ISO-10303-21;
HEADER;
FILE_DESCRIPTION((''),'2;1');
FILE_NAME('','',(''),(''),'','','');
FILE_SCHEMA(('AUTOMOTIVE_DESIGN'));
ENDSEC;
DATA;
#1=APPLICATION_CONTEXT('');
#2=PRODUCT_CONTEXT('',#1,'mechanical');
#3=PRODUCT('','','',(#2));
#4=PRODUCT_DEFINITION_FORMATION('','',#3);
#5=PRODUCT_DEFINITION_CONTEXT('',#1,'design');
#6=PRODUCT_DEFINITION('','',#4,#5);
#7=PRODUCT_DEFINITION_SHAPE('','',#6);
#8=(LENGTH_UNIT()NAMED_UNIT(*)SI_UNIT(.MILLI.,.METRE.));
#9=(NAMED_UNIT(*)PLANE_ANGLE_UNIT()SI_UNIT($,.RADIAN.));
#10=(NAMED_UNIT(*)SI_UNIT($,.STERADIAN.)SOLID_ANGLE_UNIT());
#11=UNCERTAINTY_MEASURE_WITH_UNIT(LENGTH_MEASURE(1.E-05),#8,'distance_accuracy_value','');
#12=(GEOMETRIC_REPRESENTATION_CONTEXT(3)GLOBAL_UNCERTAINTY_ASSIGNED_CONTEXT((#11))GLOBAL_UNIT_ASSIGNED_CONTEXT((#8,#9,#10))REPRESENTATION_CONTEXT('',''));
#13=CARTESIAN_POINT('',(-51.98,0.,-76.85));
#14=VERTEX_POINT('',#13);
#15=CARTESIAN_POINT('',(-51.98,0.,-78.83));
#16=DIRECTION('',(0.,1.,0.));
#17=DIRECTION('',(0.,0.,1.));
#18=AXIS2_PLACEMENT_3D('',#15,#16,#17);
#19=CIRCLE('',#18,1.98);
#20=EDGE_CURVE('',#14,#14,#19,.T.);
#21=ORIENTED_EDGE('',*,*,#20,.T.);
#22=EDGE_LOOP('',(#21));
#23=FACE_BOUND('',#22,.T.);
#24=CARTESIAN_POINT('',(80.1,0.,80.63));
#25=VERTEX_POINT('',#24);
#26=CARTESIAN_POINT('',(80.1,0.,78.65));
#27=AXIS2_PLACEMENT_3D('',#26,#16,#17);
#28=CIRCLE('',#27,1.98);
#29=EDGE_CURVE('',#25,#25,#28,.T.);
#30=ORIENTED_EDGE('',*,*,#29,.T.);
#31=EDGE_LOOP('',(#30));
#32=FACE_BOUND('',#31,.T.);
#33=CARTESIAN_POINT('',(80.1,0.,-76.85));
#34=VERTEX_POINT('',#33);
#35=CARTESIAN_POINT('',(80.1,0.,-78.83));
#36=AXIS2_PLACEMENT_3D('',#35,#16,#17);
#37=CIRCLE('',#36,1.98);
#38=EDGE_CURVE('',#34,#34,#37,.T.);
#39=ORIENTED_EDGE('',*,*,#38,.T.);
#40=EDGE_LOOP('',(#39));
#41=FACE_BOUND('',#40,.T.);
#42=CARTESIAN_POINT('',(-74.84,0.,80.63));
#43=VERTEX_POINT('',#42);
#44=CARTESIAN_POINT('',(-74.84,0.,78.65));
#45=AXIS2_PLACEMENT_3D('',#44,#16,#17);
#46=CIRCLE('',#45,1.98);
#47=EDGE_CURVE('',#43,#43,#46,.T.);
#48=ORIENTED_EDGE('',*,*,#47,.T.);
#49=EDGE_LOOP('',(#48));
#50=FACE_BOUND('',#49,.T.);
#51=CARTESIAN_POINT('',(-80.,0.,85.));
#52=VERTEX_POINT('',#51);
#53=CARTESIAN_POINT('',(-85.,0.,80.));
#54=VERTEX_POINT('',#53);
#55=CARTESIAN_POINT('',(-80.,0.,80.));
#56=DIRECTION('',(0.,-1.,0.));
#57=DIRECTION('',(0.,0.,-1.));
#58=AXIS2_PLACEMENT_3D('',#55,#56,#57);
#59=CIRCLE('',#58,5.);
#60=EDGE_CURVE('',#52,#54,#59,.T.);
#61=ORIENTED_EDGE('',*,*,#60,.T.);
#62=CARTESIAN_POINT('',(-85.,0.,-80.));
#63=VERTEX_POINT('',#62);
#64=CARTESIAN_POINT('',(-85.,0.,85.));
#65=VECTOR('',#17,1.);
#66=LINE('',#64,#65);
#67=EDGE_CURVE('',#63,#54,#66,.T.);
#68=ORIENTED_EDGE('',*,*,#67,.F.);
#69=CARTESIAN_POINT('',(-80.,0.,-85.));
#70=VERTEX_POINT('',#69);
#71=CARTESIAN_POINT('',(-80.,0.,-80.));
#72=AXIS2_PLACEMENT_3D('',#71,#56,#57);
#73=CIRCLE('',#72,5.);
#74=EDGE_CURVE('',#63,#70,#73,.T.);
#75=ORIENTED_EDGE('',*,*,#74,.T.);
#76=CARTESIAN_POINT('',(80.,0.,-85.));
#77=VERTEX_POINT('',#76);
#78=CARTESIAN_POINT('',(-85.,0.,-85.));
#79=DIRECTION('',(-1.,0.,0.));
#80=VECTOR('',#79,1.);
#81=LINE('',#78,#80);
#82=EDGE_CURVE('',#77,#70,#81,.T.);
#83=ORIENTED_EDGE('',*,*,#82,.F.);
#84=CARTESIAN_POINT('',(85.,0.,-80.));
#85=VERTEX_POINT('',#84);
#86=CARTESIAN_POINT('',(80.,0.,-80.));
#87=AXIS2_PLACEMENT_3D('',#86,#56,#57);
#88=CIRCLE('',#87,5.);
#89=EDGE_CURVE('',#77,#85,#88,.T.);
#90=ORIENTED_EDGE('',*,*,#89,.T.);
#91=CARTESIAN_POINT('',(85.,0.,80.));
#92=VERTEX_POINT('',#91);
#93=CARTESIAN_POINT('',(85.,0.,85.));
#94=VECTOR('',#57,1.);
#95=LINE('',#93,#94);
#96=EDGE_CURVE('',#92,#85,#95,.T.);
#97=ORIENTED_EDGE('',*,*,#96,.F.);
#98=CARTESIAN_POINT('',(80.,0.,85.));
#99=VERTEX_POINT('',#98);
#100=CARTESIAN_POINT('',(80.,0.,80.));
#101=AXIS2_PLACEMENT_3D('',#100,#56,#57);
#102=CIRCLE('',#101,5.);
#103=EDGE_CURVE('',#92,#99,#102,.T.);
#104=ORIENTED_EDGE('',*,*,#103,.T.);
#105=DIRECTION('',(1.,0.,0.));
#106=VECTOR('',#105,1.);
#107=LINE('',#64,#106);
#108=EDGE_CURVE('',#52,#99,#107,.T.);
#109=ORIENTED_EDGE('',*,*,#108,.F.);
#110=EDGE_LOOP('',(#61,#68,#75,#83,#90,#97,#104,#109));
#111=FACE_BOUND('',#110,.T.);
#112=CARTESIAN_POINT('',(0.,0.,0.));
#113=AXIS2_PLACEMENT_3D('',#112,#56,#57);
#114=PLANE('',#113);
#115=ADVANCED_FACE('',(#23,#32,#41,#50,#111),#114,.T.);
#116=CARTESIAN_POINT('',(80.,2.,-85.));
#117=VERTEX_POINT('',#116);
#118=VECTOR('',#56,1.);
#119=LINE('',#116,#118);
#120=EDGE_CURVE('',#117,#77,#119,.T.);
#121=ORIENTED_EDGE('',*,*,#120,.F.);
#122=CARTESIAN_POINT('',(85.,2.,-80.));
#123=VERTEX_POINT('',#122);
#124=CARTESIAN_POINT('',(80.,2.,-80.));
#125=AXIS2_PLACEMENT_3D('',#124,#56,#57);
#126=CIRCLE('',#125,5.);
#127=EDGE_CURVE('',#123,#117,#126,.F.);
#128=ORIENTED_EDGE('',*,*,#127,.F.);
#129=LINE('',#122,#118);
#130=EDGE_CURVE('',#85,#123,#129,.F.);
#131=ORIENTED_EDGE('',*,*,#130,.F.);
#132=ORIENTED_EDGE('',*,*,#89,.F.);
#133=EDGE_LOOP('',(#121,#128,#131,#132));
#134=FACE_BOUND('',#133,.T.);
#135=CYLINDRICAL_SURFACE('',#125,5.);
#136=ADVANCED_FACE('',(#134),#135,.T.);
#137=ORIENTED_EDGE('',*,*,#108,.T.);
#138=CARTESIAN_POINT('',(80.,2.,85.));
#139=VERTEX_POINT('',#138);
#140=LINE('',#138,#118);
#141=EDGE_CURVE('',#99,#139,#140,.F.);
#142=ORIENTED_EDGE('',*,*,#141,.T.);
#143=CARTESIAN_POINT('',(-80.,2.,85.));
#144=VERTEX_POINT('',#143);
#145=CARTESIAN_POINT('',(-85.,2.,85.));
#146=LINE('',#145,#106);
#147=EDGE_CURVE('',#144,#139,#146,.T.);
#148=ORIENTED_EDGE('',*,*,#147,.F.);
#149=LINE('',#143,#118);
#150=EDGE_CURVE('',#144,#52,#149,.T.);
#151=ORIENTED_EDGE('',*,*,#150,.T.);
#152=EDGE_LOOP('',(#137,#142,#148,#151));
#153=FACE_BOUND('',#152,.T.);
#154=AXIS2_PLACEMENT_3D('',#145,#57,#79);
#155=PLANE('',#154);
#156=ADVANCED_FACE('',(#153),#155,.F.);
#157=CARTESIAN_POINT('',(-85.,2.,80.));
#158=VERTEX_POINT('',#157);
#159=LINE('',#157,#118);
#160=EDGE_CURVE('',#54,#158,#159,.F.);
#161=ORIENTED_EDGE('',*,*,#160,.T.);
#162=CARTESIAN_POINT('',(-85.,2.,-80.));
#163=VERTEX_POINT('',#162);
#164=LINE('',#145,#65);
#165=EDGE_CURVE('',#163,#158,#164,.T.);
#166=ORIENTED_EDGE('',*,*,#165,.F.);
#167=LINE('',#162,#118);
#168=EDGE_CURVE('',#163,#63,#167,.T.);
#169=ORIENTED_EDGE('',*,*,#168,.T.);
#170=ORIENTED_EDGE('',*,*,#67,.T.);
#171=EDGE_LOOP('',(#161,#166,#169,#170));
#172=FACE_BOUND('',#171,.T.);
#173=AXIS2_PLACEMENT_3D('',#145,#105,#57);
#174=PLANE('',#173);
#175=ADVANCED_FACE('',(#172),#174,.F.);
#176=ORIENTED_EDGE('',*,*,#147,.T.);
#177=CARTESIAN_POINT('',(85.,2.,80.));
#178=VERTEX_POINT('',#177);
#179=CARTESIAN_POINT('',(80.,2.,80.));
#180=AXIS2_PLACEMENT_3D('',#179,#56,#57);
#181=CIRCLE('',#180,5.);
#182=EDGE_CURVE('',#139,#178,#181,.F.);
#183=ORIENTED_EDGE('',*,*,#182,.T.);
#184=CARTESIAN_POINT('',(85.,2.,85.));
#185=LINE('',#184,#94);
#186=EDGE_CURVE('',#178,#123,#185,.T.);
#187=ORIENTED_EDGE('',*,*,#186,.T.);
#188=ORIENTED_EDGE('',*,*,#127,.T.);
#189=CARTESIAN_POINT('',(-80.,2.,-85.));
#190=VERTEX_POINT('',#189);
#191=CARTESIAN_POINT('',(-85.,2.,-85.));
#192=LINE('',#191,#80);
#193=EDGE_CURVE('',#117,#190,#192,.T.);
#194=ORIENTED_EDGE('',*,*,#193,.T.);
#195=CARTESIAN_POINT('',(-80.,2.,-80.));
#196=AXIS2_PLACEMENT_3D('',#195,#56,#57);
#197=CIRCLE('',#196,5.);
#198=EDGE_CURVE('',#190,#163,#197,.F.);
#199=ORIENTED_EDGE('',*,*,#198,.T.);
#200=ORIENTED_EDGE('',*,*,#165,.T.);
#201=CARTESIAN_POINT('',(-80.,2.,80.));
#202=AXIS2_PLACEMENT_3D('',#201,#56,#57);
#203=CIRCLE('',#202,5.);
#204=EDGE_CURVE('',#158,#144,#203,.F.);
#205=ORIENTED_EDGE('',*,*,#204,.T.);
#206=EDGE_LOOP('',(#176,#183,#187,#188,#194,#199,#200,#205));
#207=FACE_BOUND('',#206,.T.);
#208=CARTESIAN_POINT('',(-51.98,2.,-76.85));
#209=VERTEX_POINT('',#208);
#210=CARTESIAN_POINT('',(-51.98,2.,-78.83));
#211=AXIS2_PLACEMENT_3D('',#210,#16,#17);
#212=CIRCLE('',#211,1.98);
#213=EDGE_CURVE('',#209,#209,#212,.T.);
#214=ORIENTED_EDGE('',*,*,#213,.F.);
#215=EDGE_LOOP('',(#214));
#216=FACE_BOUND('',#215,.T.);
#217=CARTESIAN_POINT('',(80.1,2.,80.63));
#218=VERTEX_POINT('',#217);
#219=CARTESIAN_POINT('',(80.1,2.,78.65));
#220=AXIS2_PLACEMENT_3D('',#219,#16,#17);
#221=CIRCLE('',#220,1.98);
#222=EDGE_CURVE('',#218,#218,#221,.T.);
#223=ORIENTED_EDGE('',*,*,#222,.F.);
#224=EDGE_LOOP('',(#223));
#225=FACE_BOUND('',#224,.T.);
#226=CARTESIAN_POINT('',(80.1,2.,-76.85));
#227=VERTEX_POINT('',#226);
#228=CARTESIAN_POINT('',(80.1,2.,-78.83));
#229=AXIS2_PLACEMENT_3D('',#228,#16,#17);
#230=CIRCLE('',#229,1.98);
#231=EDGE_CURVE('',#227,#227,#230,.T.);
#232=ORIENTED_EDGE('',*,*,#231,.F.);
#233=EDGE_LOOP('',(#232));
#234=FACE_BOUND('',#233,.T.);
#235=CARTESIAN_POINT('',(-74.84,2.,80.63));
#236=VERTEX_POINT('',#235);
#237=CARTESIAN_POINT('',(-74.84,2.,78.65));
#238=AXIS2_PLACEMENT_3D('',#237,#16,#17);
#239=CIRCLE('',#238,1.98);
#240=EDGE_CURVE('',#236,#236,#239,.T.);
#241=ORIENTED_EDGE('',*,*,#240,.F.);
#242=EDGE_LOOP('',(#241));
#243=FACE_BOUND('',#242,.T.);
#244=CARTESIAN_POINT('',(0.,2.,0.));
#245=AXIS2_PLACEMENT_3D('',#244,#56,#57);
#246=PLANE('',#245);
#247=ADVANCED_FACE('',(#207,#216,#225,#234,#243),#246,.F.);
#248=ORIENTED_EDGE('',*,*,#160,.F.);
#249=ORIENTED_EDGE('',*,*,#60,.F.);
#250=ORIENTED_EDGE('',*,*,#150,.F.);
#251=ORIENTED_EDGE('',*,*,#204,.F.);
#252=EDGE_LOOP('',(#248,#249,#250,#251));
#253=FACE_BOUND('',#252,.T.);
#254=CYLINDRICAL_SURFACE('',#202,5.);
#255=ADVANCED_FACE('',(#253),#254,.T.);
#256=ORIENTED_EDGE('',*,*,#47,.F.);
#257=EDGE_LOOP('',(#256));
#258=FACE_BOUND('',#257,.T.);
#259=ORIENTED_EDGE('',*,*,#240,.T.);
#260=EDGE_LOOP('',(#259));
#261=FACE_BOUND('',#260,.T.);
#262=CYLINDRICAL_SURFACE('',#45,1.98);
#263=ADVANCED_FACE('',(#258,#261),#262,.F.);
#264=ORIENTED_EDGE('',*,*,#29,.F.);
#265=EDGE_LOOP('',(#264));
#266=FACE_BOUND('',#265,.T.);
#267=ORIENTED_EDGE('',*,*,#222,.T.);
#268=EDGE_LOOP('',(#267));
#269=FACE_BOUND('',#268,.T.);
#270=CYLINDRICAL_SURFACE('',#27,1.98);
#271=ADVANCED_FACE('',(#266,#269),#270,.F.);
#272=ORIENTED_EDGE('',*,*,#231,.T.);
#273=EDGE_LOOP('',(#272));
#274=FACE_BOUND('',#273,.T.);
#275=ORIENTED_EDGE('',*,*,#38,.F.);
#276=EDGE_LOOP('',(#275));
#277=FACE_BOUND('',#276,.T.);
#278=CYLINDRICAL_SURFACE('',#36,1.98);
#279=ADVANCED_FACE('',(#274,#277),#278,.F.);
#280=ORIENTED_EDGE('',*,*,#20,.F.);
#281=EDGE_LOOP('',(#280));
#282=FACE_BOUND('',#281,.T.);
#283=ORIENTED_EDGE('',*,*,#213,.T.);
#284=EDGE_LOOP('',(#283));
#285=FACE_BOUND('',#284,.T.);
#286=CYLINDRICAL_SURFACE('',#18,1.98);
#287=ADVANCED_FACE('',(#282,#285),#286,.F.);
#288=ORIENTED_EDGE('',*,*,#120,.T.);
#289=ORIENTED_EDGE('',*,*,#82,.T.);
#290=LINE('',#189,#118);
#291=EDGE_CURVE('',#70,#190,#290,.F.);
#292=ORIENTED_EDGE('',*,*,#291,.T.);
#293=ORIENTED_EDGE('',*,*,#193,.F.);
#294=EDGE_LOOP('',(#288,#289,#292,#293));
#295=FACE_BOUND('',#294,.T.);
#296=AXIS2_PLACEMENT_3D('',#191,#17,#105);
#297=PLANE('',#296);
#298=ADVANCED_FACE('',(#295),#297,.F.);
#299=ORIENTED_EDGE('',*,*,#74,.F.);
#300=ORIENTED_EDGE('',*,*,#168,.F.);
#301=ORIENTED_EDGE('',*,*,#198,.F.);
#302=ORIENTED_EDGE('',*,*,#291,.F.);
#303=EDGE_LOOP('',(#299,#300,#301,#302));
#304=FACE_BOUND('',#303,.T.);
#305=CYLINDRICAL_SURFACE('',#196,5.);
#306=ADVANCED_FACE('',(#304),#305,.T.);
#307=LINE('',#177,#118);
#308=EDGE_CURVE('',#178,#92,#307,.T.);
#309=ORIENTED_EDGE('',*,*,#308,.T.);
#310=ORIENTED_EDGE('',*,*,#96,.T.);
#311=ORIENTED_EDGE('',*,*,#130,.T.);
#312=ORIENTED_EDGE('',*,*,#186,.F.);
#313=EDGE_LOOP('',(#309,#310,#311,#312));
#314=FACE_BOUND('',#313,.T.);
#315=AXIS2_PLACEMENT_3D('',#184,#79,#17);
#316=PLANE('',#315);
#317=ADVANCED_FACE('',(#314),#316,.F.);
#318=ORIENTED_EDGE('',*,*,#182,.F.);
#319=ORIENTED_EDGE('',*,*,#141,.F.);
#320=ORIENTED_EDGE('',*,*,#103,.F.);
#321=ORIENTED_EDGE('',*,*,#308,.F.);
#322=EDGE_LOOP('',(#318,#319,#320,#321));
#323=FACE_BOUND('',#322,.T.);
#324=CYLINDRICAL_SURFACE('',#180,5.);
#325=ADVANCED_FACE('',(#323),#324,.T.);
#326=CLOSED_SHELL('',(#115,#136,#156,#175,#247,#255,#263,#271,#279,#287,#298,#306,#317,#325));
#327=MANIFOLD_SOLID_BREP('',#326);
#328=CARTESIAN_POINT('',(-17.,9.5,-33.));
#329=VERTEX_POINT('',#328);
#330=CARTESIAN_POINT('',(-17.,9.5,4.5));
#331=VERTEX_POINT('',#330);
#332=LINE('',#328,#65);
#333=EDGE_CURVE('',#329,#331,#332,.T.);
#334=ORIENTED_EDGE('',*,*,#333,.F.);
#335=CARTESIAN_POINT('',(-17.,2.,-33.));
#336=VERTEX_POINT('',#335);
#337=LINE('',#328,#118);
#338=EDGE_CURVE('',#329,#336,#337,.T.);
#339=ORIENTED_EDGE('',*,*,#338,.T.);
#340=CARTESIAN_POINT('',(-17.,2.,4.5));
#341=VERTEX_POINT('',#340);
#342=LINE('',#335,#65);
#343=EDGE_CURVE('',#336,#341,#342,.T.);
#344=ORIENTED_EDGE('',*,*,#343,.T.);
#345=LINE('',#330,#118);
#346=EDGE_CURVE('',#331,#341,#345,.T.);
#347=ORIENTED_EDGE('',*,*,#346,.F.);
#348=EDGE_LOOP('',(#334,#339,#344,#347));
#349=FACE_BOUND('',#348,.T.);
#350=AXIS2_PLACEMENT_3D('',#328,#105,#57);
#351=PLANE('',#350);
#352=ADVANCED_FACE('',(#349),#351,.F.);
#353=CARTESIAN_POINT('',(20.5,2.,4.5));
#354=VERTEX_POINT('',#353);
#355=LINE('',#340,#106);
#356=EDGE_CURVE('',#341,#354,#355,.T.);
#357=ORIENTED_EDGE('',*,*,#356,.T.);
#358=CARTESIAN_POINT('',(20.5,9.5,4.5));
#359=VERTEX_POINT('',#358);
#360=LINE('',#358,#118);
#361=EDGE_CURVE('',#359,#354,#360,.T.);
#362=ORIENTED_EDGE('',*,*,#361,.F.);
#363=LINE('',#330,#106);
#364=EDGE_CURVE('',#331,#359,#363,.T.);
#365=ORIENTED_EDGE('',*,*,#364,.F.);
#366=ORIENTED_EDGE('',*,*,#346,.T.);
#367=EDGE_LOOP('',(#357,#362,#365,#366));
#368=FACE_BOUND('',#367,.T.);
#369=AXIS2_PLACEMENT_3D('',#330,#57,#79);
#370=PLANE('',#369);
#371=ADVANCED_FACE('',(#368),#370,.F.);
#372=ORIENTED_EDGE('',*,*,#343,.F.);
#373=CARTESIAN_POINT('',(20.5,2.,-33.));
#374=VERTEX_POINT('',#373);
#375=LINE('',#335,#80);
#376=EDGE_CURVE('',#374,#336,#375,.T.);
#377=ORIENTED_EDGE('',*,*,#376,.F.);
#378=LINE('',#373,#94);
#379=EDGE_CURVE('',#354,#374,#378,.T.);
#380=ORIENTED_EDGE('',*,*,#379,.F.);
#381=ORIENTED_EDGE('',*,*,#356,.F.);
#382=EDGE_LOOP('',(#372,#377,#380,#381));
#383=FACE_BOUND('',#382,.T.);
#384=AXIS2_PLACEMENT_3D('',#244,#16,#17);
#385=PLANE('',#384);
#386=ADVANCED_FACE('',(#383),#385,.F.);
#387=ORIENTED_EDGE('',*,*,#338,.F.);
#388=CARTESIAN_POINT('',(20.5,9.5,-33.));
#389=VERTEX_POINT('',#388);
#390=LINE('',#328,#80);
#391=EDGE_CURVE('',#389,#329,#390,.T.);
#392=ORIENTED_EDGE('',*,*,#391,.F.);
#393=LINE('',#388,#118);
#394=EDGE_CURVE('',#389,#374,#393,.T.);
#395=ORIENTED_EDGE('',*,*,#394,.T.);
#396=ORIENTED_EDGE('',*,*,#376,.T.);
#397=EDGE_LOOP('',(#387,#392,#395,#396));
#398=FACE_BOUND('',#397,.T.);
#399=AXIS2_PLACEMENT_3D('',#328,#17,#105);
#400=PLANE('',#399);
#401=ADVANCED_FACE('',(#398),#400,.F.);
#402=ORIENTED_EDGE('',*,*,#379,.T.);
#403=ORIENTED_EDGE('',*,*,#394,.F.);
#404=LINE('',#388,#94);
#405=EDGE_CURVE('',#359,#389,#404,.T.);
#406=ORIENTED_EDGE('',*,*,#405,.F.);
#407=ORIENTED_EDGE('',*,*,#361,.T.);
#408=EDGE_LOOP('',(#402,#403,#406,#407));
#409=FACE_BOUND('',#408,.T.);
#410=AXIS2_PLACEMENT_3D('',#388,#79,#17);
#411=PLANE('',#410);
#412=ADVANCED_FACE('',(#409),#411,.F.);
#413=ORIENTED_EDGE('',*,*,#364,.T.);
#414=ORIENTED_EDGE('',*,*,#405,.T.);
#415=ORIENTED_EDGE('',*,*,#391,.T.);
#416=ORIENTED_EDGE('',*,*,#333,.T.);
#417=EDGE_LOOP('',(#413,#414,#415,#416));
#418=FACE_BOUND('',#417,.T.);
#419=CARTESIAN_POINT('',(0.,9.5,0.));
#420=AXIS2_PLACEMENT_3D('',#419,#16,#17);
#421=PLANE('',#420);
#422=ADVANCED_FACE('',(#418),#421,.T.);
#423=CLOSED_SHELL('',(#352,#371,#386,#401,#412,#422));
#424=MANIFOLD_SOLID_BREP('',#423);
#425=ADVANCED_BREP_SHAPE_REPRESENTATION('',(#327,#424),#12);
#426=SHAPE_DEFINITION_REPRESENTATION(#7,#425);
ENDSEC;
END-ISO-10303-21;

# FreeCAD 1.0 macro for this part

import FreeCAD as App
import Part
import Sketcher
Q = App.Units.Quantity


def edges_at(feature, points):
    """Names of the edges that pass closest to the given points."""
    edges = feature.Shape.Edges
    near = lambda p: min(range(len(edges)), key=lambda i: edges[i].distToShape(Part.Vertex(*p))[0])
    return sorted({f"Edge{near(p) + 1}" for p in points})

doc = App.newDocument("Part")
body = doc.addObject("PartDesign::Body", "Body")

# Sketch on XZ plane
sketch1 = body.newObject("Sketcher::SketchObject", "Sketch")
sketch1.AttachmentSupport = (doc.getObject("XZ_Plane"), [""])
sketch1.MapMode = "FlatFace"
sketch1.addGeometry([
    Part.LineSegment(App.Vector(-85, -85, 0), App.Vector(-85, 85, 0)),
    Part.LineSegment(App.Vector(-85, 85, 0), App.Vector(85, 85, 0)),
    Part.LineSegment(App.Vector(85, 85, 0), App.Vector(85, -85, 0)),
    Part.LineSegment(App.Vector(85, -85, 0), App.Vector(-85, -85, 0)),
], False)
sketch1.addConstraint([
    Sketcher.Constraint("Coincident", 0, 2, 1, 1),
    Sketcher.Constraint("Coincident", 1, 2, 2, 1),
    Sketcher.Constraint("Coincident", 2, 2, 3, 1),
    Sketcher.Constraint("Coincident", 3, 2, 0, 1),
    Sketcher.Constraint("Vertical", 0),
    Sketcher.Constraint("Horizontal", 1),
    Sketcher.Constraint("Vertical", 2),
    Sketcher.Constraint("Horizontal", 3),
    Sketcher.Constraint("Symmetric", 0, 2, 2, 2, -1, 1),
    Sketcher.Constraint("Equal", 3, 0),
    Sketcher.Constraint("DistanceX", 1, 1, 1, 2, Q("170 mm")),
])
pad1 = body.newObject("PartDesign::Pad", "Pad")
pad1.Profile = sketch1
pad1.Length = 2
pad1.Reversed = True

# Sketch on XZ plane
sketch2 = body.newObject("Sketcher::SketchObject", "Sketch001")
sketch2.AttachmentSupport = (doc.getObject("XZ_Plane"), [""])
sketch2.MapMode = "FlatFace"
sketch2.AttachmentOffset = App.Placement(App.Vector(0, 0, -2), App.Rotation())
sketch2.addGeometry([
    Part.Circle(App.Vector(-74.8, 78.7, 0), App.Vector(0, 0, 1), 2),
    Part.Circle(App.Vector(-52, -78.8, 0), App.Vector(0, 0, 1), 2),
    Part.Circle(App.Vector(80.1, -78.8, 0), App.Vector(0, 0, 1), 2),
    Part.Circle(App.Vector(80.1, 78.7, 0), App.Vector(0, 0, 1), 2),
], False)
sketch2.addConstraint([
    Sketcher.Constraint("Equal", 0, 1),
    Sketcher.Constraint("Equal", 1, 2),
    Sketcher.Constraint("Equal", 2, 3),
    Sketcher.Constraint("Horizontal", 1, 3, 2, 3),
    Sketcher.Constraint("Horizontal", 0, 3, 3, 3),
    Sketcher.Constraint("Vertical", 2, 3, 3, 3),
    Sketcher.Constraint("Diameter", 0, Q("3.96 mm")),
    Sketcher.Constraint("DistanceX", -1, 1, 2, 3, Q("80.1 mm")),
    Sketcher.Constraint("DistanceX", 0, 3, -1, 1, Q("74.84 mm")),
    Sketcher.Constraint("DistanceY", -1, 1, 0, 3, Q("78.65 mm")),
    Sketcher.Constraint("DistanceX", 1, 3, -1, 1, Q("51.98 mm")),
    Sketcher.Constraint("DistanceY", 1, 3, -1, 1, Q("78.83 mm")),
])
pocket1 = body.newObject("PartDesign::Pocket", "Pocket")
pocket1.Profile = sketch2
pocket1.Type = "ThroughAll"
pocket1.Reversed = True
doc.recompute()

fillet = body.newObject("PartDesign::Fillet", "Fillet")
fillet.Base = (pocket1, edges_at(pocket1, [
    (85, 1, 85),
    (-85, 1, 85),
    (-85, 1, -85),
    (85, 1, -85),
]))
fillet.Radius = 5
body2 = doc.addObject("PartDesign::Body", "Body001")

# Sketch on XZ plane
sketch3 = body2.newObject("Sketcher::SketchObject", "Sketch002")
sketch3.AttachmentSupport = (doc.getObject("XZ_Plane001"), [""])
sketch3.MapMode = "FlatFace"
sketch3.AttachmentOffset = App.Placement(App.Vector(0, 0, -2), App.Rotation())
sketch3.addGeometry([
    Part.LineSegment(App.Vector(-17, -33, 0), App.Vector(-17, 4, 0)),
    Part.LineSegment(App.Vector(-17, 4, 0), App.Vector(20, 4, 0)),
    Part.LineSegment(App.Vector(20, 4, 0), App.Vector(20, -33, 0)),
    Part.LineSegment(App.Vector(20, -33, 0), App.Vector(-17, -33, 0)),
], False)
sketch3.addConstraint([
    Sketcher.Constraint("Coincident", 0, 2, 1, 1),
    Sketcher.Constraint("Coincident", 1, 2, 2, 1),
    Sketcher.Constraint("Coincident", 2, 2, 3, 1),
    Sketcher.Constraint("Coincident", 3, 2, 0, 1),
    Sketcher.Constraint("Vertical", 0),
    Sketcher.Constraint("Horizontal", 1),
    Sketcher.Constraint("Vertical", 2),
    Sketcher.Constraint("Horizontal", 3),
    Sketcher.Constraint("Equal", 3, 0),
    Sketcher.Constraint("DistanceX", 1, 1, 1, 2, Q("37.5 mm")),
    Sketcher.Constraint("DistanceX", 0, 2, -1, 1, Q("17 mm")),
    Sketcher.Constraint("DistanceY", 2, 2, -1, 1, Q("33 mm")),
])
pad2 = body2.newObject("PartDesign::Pad", "Pad001")
pad2.Profile = sketch3
pad2.Length = 7.5
pad2.Reversed = True

doc.recompute()
